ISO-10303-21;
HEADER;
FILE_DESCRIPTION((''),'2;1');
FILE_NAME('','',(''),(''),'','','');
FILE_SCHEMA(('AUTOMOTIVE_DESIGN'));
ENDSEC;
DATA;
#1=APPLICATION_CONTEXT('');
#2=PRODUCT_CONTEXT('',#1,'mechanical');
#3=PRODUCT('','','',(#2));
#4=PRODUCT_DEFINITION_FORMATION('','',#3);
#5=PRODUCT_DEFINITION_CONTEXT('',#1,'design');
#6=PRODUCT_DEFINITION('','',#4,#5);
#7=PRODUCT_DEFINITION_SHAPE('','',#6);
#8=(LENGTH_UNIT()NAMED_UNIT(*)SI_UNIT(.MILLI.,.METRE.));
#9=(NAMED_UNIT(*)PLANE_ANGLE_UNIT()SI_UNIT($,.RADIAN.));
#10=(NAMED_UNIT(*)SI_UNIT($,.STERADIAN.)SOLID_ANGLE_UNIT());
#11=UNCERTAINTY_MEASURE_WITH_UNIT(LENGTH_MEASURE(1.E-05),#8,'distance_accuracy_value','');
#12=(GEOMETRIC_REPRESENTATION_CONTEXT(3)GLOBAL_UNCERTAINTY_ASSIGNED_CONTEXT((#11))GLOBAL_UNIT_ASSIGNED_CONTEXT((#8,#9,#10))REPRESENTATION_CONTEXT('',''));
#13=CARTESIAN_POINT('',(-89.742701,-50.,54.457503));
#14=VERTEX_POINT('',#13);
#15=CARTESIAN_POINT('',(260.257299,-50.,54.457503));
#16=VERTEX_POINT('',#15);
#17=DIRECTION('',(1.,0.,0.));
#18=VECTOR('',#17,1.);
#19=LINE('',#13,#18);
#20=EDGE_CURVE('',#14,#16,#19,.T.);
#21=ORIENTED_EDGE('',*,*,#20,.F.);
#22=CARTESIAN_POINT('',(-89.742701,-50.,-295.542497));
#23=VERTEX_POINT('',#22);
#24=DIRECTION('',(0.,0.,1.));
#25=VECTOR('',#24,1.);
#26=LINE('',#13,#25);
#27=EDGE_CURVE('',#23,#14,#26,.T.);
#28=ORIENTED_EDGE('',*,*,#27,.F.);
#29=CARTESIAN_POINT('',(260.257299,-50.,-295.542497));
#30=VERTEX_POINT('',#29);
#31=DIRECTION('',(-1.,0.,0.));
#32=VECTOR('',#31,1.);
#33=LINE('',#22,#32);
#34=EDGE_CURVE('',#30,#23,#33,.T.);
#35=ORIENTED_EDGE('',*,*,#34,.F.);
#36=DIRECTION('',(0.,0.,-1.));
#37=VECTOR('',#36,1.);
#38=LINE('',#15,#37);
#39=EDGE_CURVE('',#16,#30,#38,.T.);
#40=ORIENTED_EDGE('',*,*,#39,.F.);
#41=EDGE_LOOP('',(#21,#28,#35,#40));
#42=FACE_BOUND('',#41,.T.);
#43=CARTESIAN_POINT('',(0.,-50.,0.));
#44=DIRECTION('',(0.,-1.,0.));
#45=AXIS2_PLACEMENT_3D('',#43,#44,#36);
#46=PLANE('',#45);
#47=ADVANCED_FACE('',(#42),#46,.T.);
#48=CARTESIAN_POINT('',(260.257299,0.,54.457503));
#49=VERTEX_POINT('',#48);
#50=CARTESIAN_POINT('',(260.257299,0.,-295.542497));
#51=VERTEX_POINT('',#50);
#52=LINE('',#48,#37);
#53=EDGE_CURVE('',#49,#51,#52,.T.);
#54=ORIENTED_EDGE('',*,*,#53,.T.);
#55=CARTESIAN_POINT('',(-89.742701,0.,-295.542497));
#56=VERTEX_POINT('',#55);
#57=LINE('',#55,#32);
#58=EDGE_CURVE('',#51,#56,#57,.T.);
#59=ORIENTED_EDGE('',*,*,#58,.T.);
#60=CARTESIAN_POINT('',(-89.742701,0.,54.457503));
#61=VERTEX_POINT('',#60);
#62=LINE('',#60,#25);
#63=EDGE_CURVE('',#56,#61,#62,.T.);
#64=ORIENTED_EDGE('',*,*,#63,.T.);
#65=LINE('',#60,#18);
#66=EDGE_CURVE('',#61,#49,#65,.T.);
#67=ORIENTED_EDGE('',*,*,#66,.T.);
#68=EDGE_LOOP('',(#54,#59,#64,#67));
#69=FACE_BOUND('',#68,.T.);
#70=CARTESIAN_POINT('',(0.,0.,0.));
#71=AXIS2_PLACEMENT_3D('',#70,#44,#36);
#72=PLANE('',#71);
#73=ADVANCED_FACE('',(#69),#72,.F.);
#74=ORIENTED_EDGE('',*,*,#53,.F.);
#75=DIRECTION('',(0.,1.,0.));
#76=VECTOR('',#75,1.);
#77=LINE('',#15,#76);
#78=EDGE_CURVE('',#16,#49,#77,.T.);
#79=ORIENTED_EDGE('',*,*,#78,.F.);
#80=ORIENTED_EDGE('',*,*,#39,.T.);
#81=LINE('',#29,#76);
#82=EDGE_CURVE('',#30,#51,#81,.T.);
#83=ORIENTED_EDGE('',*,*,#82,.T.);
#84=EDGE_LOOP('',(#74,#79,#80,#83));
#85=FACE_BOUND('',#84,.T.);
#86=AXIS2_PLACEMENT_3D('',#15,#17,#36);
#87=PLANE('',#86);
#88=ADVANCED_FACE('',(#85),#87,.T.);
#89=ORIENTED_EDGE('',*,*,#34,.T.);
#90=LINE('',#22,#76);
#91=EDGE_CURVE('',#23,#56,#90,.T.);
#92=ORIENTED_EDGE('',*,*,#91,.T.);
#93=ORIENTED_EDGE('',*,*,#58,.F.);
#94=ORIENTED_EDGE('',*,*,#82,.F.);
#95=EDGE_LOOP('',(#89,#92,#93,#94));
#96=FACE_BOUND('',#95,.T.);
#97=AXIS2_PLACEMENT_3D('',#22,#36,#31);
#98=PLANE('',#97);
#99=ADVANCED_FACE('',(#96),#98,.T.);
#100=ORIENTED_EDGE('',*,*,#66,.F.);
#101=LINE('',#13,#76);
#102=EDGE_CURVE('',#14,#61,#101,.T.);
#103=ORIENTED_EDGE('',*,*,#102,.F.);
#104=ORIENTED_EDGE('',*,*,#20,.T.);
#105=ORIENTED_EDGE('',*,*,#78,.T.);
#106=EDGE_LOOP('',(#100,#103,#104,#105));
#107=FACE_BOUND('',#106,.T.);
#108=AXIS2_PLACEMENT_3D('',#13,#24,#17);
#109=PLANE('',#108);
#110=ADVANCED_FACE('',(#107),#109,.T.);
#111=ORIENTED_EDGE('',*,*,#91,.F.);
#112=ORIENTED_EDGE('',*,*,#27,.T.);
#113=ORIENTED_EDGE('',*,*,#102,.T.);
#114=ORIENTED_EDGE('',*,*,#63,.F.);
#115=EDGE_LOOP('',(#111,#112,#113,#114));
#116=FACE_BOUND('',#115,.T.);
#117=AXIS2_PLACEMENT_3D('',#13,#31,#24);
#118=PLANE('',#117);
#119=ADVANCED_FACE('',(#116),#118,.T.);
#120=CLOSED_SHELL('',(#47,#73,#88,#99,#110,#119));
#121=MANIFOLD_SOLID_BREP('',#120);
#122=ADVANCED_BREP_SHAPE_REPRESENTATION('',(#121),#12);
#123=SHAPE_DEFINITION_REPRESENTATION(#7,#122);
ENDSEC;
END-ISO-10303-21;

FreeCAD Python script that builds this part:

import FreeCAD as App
import Part
import Sketcher
from FreeCAD import Vector
Q = App.Units.Quantity

doc = App.newDocument("Part")
params = doc.addObject("Spreadsheet::Sheet", "Params")
for row, (alias, value) in enumerate([
    ("sketch1_width", "350 mm"),
    ("pad1_length", "50 mm"),
], start=1):
    params.set(f"A{row}", alias)
    params.set(f"B{row}", "=" + value)
    params.setAlias(f"B{row}", alias)

body = doc.addObject("PartDesign::Body", "Body")

sketch1 = body.newObject("Sketcher::SketchObject", "Sketch")
sketch1.AttachmentSupport = (doc.getObject("XZ_Plane"), [""])
sketch1.MapMode = "FlatFace"
sketch1.addGeometry(Part.LineSegment(Vector(-90, -296, 0), Vector(-90, 54, 0)), False)
sketch1.addGeometry(Part.LineSegment(Vector(-90, 54, 0), Vector(260, 54, 0)), False)
sketch1.addGeometry(Part.LineSegment(Vector(260, 54, 0), Vector(260, -296, 0)), False)
sketch1.addGeometry(Part.LineSegment(Vector(260, -296, 0), Vector(-90, -296, 0)), False)
sketch1.addConstraint(Sketcher.Constraint("Coincident", 0, 2, 1, 1))
sketch1.addConstraint(Sketcher.Constraint("Coincident", 1, 2, 2, 1))
sketch1.addConstraint(Sketcher.Constraint("Coincident", 2, 2, 3, 1))
sketch1.addConstraint(Sketcher.Constraint("Coincident", 3, 2, 0, 1))
sketch1.addConstraint(Sketcher.Constraint("Vertical", 0))
sketch1.addConstraint(Sketcher.Constraint("Horizontal", 1))
sketch1.addConstraint(Sketcher.Constraint("Vertical", 2))
sketch1.addConstraint(Sketcher.Constraint("Horizontal", 3))
sketch1.addConstraint(Sketcher.Constraint("Equal", 3, 0))
sketch1.addConstraint(Sketcher.Constraint("DistanceX", 1, 1, 1, 2, Q("350 mm")))
sketch1.addConstraint(Sketcher.Constraint("DistanceX", 0, 2, -1, 1, Q("89.742701 mm")))
sketch1.addConstraint(Sketcher.Constraint("DistanceY", -1, 1, 0, 2, Q("54.457503 mm")))
sketch1.setExpression("Constraints[9]", "Params.sketch1_width")
pad1 = body.newObject("PartDesign::Pad", "Pad")
pad1.Profile = sketch1
pad1.setExpression("Length", "Params.pad1_length")

doc.recompute()
